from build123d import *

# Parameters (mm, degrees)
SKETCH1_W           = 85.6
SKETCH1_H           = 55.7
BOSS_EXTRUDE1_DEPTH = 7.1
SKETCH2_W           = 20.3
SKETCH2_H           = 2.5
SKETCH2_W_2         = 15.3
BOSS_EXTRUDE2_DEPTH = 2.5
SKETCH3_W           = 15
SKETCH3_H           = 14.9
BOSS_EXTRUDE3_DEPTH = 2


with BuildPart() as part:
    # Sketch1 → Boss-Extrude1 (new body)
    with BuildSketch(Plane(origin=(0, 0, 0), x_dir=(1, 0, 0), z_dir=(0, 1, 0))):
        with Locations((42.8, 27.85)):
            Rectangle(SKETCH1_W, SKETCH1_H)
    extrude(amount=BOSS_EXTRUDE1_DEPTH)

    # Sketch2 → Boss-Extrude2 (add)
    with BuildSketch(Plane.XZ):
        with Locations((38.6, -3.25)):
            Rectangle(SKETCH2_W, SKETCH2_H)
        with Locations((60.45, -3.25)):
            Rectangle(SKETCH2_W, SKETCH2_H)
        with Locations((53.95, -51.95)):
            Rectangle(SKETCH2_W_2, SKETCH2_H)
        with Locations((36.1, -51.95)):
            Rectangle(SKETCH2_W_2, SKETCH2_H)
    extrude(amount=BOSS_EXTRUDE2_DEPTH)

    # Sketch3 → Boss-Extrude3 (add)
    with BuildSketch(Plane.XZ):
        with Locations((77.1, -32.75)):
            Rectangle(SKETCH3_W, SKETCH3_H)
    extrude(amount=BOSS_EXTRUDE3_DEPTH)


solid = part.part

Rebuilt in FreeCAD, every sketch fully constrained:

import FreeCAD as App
import Part
import Sketcher
Q = App.Units.Quantity


def add_polygon(sketch, points):
    """Adds a closed chain of lines whose ends are joined by coincident constraints."""
    first, n = sketch.GeometryCount, len(points)
    for a, b in zip(points, points[1:] + points[:1]):
        sketch.addGeometry(Part.LineSegment(App.Vector(*a, 0), App.Vector(*b, 0)), False)
    for i in range(n):
        sketch.addConstraint(Sketcher.Constraint("Coincident", first + i, 2, first + (i + 1) % n, 1))

doc = App.newDocument("Part")
body = doc.addObject("PartDesign::Body", "Body")

# Sketch on XZ plane
sketch1 = doc.addObject("Sketcher::SketchObject", "Sketch")
body.addObject(sketch1)
sketch1.AttachmentSupport = (doc.XZ_Plane, [""])
sketch1.MapMode = "FlatFace"
add_polygon(sketch1, [(0, -56), (0, 0), (86, 0), (86, -56)])  # lines 0-3
sketch1.addConstraint([
    Sketcher.Constraint("Vertical", 0),
    Sketcher.Constraint("Horizontal", 1),
    Sketcher.Constraint("Vertical", 2),
    Sketcher.Constraint("Horizontal", 3),
    Sketcher.Constraint("Coincident", 0, 2, -1, 1),
    Sketcher.Constraint("DistanceX", 1, 1, 1, 2, Q("85.6 mm")),
    Sketcher.Constraint("DistanceY", 0, 1, 0, 2, Q("55.7 mm")),
])
pad1 = doc.addObject("PartDesign::Pad", "Pad")
body.addObject(pad1)
pad1.Profile = sketch1
pad1.Length = 7.1
pad1.Reversed = True

# Sketch on XZ plane
sketch2 = doc.addObject("Sketcher::SketchObject", "Sketch001")
body.addObject(sketch2)
sketch2.AttachmentSupport = (doc.XZ_Plane, [""])
sketch2.MapMode = "FlatFace"
add_polygon(sketch2, [(28.4, -2), (28.4, -4.5), (48.8, -4.5), (48.8, -2)])  # lines 0-3
add_polygon(sketch2, [(50.3, -2), (50.3, -4.5), (70.6, -4.5), (70.6, -2)])  # lines 4-7
add_polygon(sketch2, [(46.3, -50.7), (46.3, -53.2), (61.6, -53.2), (61.6, -50.7)])  # lines 8-11
add_polygon(sketch2, [(28.4, -50.7), (28.4, -53.2), (43.8, -53.2), (43.8, -50.7)])  # lines 12-15
sketch2.addConstraint([
    Sketcher.Constraint("Vertical", 0),
    Sketcher.Constraint("Horizontal", 1),
    Sketcher.Constraint("Vertical", 2),
    Sketcher.Constraint("Horizontal", 3),
    Sketcher.Constraint("Vertical", 4),
    Sketcher.Constraint("Horizontal", 5),
    Sketcher.Constraint("Vertical", 6),
    Sketcher.Constraint("Horizontal", 7),
    Sketcher.Constraint("Vertical", 8),
    Sketcher.Constraint("Horizontal", 9),
    Sketcher.Constraint("Vertical", 10),
    Sketcher.Constraint("Horizontal", 11),
    Sketcher.Constraint("Vertical", 12),
    Sketcher.Constraint("Horizontal", 13),
    Sketcher.Constraint("Vertical", 14),
    Sketcher.Constraint("Horizontal", 15),
    Sketcher.Constraint("Horizontal", 1, 2, 4, 2),
    Sketcher.Constraint("Horizontal", 3, 2, 6, 2),
    Sketcher.Constraint("Horizontal", 9, 2, 12, 2),
    Sketcher.Constraint("Horizontal", 11, 2, 14, 2),
    Sketcher.Constraint("Vertical", 3, 2, 12, 2),
    Sketcher.Constraint("Equal", 3, 5),
    Sketcher.Constraint("Equal", 11, 13),
    Sketcher.Constraint("Equal", 6, 8),
    Sketcher.Constraint("DistanceX", 1, 1, 1, 2, Q("20.3 mm")),
    Sketcher.Constraint("DistanceX", 9, 1, 9, 2, Q("15.3 mm")),
    Sketcher.Constraint("DistanceY", 0, 2, 0, 1, Q("2.5 mm")),
    Sketcher.Constraint("DistanceY", 2, 2, -1, 1, Q("2 mm")),
    Sketcher.Constraint("DistanceX", 8, 2, 4, 2, Q("4 mm")),
    Sketcher.Constraint("DistanceX", -1, 1, 4, 2, Q("50.3 mm")),
    Sketcher.Constraint("DistanceY", 8, 2, -1, 1, Q("53.2 mm")),
    Sketcher.Constraint("DistanceX", -1, 1, 0, 2, Q("28.45 mm")),
])
pad2 = doc.addObject("PartDesign::Pad", "Pad001")
body.addObject(pad2)
pad2.Profile = sketch2
pad2.Length = 2.5

# Sketch on XZ plane
sketch3 = doc.addObject("Sketcher::SketchObject", "Sketch002")
body.addObject(sketch3)
sketch3.AttachmentSupport = (doc.XZ_Plane, [""])
sketch3.MapMode = "FlatFace"
add_polygon(sketch3, [(70, -25), (70, -40), (85, -40), (85, -25)])  # lines 0-3
sketch3.addConstraint([
    Sketcher.Constraint("Vertical", 0),
    Sketcher.Constraint("Horizontal", 1),
    Sketcher.Constraint("Vertical", 2),
    Sketcher.Constraint("Horizontal", 3),
    Sketcher.Constraint("DistanceX", 1, 1, 1, 2, Q("15 mm")),
    Sketcher.Constraint("DistanceY", 0, 2, 0, 1, Q("14.9 mm")),
    Sketcher.Constraint("DistanceX", -1, 1, 0, 2, Q("69.6 mm")),
    Sketcher.Constraint("DistanceY", 0, 2, -1, 1, Q("40.2 mm")),
])
pad3 = doc.addObject("PartDesign::Pad", "Pad002")
body.addObject(pad3)
pad3.Profile = sketch3
pad3.Length = 2

doc.recompute()
